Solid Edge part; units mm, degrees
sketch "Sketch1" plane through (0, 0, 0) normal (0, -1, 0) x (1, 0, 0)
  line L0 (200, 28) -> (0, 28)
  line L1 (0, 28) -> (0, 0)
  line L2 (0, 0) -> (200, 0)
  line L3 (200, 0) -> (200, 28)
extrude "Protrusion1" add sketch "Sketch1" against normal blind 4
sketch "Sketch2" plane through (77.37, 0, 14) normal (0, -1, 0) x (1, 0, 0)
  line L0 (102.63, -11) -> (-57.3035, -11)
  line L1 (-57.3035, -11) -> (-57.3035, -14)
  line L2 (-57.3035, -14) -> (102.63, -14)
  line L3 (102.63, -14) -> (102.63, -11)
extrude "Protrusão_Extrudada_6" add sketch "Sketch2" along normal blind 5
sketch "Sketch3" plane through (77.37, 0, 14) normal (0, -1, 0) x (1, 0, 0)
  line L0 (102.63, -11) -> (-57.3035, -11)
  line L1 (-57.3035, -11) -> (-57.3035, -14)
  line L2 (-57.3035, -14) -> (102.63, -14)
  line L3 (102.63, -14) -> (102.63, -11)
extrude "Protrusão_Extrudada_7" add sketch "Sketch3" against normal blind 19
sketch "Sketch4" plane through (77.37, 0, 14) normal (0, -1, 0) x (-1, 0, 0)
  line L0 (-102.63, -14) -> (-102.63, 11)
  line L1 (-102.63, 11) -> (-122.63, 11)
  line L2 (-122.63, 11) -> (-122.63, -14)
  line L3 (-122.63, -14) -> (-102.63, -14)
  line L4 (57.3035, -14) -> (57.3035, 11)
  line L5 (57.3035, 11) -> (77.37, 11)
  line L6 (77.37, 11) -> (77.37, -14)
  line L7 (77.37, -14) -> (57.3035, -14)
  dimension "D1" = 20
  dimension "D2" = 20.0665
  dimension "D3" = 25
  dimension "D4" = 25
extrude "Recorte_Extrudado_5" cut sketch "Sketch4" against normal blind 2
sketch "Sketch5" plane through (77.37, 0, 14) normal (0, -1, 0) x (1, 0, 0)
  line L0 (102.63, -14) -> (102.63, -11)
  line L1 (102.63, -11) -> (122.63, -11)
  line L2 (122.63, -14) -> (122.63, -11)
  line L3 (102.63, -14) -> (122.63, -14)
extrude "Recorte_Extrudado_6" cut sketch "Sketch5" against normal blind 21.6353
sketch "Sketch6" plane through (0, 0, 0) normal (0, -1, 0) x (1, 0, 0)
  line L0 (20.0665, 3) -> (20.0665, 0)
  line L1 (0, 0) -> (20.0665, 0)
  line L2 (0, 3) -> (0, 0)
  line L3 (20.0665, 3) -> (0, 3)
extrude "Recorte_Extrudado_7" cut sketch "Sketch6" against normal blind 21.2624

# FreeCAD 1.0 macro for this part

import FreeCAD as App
import Part
import Sketcher
from FreeCAD import Vector

doc = App.newDocument("Part")
params = doc.addObject("Spreadsheet::Sheet", "Params")
for row, (alias, value) in enumerate([
    ("sketch1_width", "200 mm"),
    ("sketch1_height", "28 mm"),
    ("pad1_length", "4 mm"),
    ("sketch2_height", "3 mm"),
    ("pad2_length", "5 mm"),
    ("sketch3_height", "3 mm"),
    ("pad3_length", "19 mm"),
    ("sketch4_width", "20 mm"),
    ("sketch4_height", "25 mm"),
    ("pocket1_length", "2 mm"),
    ("sketch5_width", "20 mm"),
    ("sketch5_height", "3 mm"),
    ("pocket2_length", "21.6353 mm"),
    ("sketch6_height", "3 mm"),
    ("pocket3_length", "21.2624 mm"),
], start=1):
    params.set(f"A{row}", alias)
    params.set(f"B{row}", "=" + value)
    params.setAlias(f"B{row}", alias)

body = doc.addObject("PartDesign::Body", "Body")

# Sketch on XZ plane
sketch1 = body.newObject("Sketcher::SketchObject", "Sketch")
sketch1.AttachmentSupport = (doc.getObject("XZ_Plane"), [""])
sketch1.MapMode = "FlatFace"
sketch1.addGeometry([
    Part.LineSegment(Vector(200, 0, 0), Vector(200, 28, 0)),
    Part.LineSegment(Vector(200, 28, 0), Vector(0, 28, 0)),
    Part.LineSegment(Vector(0, 28, 0), Vector(0, 0, 0)),
    Part.LineSegment(Vector(0, 0, 0), Vector(200, 0, 0)),
], False)
sketch1.addConstraint([
    Sketcher.Constraint("Coincident", 0, 2, 1, 1),
    Sketcher.Constraint("Coincident", 1, 2, 2, 1),
    Sketcher.Constraint("Coincident", 2, 2, 3, 1),
    Sketcher.Constraint("Coincident", 3, 2, 0, 1),
    Sketcher.Constraint("Vertical", 0),
    Sketcher.Constraint("Horizontal", 1),
    Sketcher.Constraint("Vertical", 2),
    Sketcher.Constraint("Horizontal", 3),
    Sketcher.Constraint("Coincident", 2, 2, -1, 1),
    Sketcher.Constraint("DistanceX", 1, 2, 1, 1, 200.0),
    Sketcher.Constraint("DistanceY", 0, 1, 0, 2, 28.0),
])
sketch1.setExpression("Constraints[9]", "Params.sketch1_width")
sketch1.setExpression("Constraints[10]", "Params.sketch1_height")
pad1 = body.newObject("PartDesign::Pad", "Pad")
pad1.Profile = sketch1
pad1.setExpression("Length", "Params.pad1_length")
pad1.Reversed = True

# Sketch on XZ plane
sketch2 = body.newObject("Sketcher::SketchObject", "Sketch001")
sketch2.AttachmentSupport = (doc.getObject("XZ_Plane"), [""])
sketch2.MapMode = "FlatFace"
sketch2.addGeometry([
    Part.LineSegment(Vector(180, 0, 0), Vector(180, 3, 0)),
    Part.LineSegment(Vector(180, 3, 0), Vector(20.1, 3, 0)),
    Part.LineSegment(Vector(20.1, 3, 0), Vector(20.1, 0, 0)),
    Part.LineSegment(Vector(20.1, 0, 0), Vector(180, 0, 0)),
], False)
sketch2.addConstraint([
    Sketcher.Constraint("Coincident", 0, 2, 1, 1),
    Sketcher.Constraint("Coincident", 1, 2, 2, 1),
    Sketcher.Constraint("Coincident", 2, 2, 3, 1),
    Sketcher.Constraint("Coincident", 3, 2, 0, 1),
    Sketcher.Constraint("Vertical", 0),
    Sketcher.Constraint("Horizontal", 1),
    Sketcher.Constraint("Vertical", 2),
    Sketcher.Constraint("Horizontal", 3),
    Sketcher.Constraint("PointOnObject", 2, 2, -1),
    Sketcher.Constraint("DistanceY", 0, 1, 0, 2, 3.0),
    Sketcher.Constraint("DistanceX", -1, 1, 0, 2, 180.0),
    Sketcher.Constraint("DistanceX", 1, 2, 1, 1, 159.9335),
])
sketch2.setExpression("Constraints[9]", "Params.sketch2_height")
pad2 = body.newObject("PartDesign::Pad", "Pad001")
pad2.Profile = sketch2
pad2.setExpression("Length", "Params.pad2_length")

# Sketch on XZ plane
sketch3 = body.newObject("Sketcher::SketchObject", "Sketch002")
sketch3.AttachmentSupport = (doc.getObject("XZ_Plane"), [""])
sketch3.MapMode = "FlatFace"
sketch3.addGeometry([
    Part.LineSegment(Vector(180, 0, 0), Vector(180, 3, 0)),
    Part.LineSegment(Vector(180, 3, 0), Vector(20.1, 3, 0)),
    Part.LineSegment(Vector(20.1, 3, 0), Vector(20.1, 0, 0)),
    Part.LineSegment(Vector(20.1, 0, 0), Vector(180, 0, 0)),
], False)
sketch3.addConstraint([
    Sketcher.Constraint("Coincident", 0, 2, 1, 1),
    Sketcher.Constraint("Coincident", 1, 2, 2, 1),
    Sketcher.Constraint("Coincident", 2, 2, 3, 1),
    Sketcher.Constraint("Coincident", 3, 2, 0, 1),
    Sketcher.Constraint("Vertical", 0),
    Sketcher.Constraint("Horizontal", 1),
    Sketcher.Constraint("Vertical", 2),
    Sketcher.Constraint("Horizontal", 3),
    Sketcher.Constraint("PointOnObject", 2, 2, -1),
    Sketcher.Constraint("DistanceY", 0, 1, 0, 2, 3.0),
    Sketcher.Constraint("DistanceX", -1, 1, 0, 2, 180.0),
    Sketcher.Constraint("DistanceX", 1, 2, 1, 1, 159.9335),
])
sketch3.setExpression("Constraints[9]", "Params.sketch3_height")
pad3 = body.newObject("PartDesign::Pad", "Pad002")
pad3.Profile = sketch3
pad3.setExpression("Length", "Params.pad3_length")
pad3.Reversed = True

# Sketch on XZ plane
sketch4 = body.newObject("Sketcher::SketchObject", "Sketch003")
sketch4.AttachmentSupport = (doc.getObject("XZ_Plane"), [""])
sketch4.MapMode = "FlatFace"
sketch4.addGeometry([
    Part.LineSegment(Vector(200, 28, 0), Vector(180, 28, 0)),  # 0
    Part.LineSegment(Vector(180, 28, 0), Vector(180, 3, 0)),  # 1
    Part.LineSegment(Vector(180, 3, 0), Vector(200, 3, 0)),  # 2
    Part.LineSegment(Vector(200, 3, 0), Vector(200, 28, 0)),  # 3
    Part.LineSegment(Vector(20, 3, 0), Vector(20, 28, 0)),  # 4
    Part.LineSegment(Vector(20, 28, 0), Vector(0, 28, 0)),  # 5
    Part.LineSegment(Vector(0, 28, 0), Vector(0, 3, 0)),  # 6
    Part.LineSegment(Vector(0, 3, 0), Vector(20, 3, 0)),  # 7
], False)
sketch4.addConstraint([
    Sketcher.Constraint("Coincident", 0, 2, 1, 1),
    Sketcher.Constraint("Coincident", 1, 2, 2, 1),
    Sketcher.Constraint("Coincident", 2, 2, 3, 1),
    Sketcher.Constraint("Coincident", 3, 2, 0, 1),
    Sketcher.Constraint("Coincident", 4, 2, 5, 1),
    Sketcher.Constraint("Coincident", 5, 2, 6, 1),
    Sketcher.Constraint("Coincident", 6, 2, 7, 1),
    Sketcher.Constraint("Coincident", 7, 2, 4, 1),
    Sketcher.Constraint("Horizontal", 0),
    Sketcher.Constraint("Vertical", 1),
    Sketcher.Constraint("Horizontal", 2),
    Sketcher.Constraint("Vertical", 3),
    Sketcher.Constraint("Vertical", 4),
    Sketcher.Constraint("Horizontal", 5),
    Sketcher.Constraint("Vertical", 6),
    Sketcher.Constraint("Horizontal", 7),
    Sketcher.Constraint("PointOnObject", 5, 2, -2),
    Sketcher.Constraint("Horizontal", 3, 2, 4, 2),
    Sketcher.Constraint("Horizontal", 2, 2, 6, 2),
    Sketcher.Constraint("DistanceX", 0, 2, 0, 1, 20.0),
    Sketcher.Constraint("DistanceY", 1, 2, 1, 1, 25.0),
    Sketcher.Constraint("DistanceX", -1, 1, 0, 2, 180.0),
    Sketcher.Constraint("DistanceY", -1, 1, 0, 2, 28.0),
    Sketcher.Constraint("DistanceX", 5, 2, 5, 1, 20.0665),
])
sketch4.setExpression("Constraints[19]", "Params.sketch4_width")
sketch4.setExpression("Constraints[20]", "Params.sketch4_height")
pocket1 = body.newObject("PartDesign::Pocket", "Pocket")
pocket1.Profile = sketch4
pocket1.setExpression("Length", "Params.pocket1_length")

# Sketch on XZ plane
sketch5 = body.newObject("Sketcher::SketchObject", "Sketch004")
sketch5.AttachmentSupport = (doc.getObject("XZ_Plane"), [""])
sketch5.MapMode = "FlatFace"
sketch5.addGeometry([
    Part.LineSegment(Vector(180, 3, 0), Vector(180, 0, 0)),
    Part.LineSegment(Vector(180, 0, 0), Vector(200, 0, 0)),
    Part.LineSegment(Vector(200, 0, 0), Vector(200, 3, 0)),
    Part.LineSegment(Vector(200, 3, 0), Vector(180, 3, 0)),
], False)
sketch5.addConstraint([
    Sketcher.Constraint("Coincident", 0, 2, 1, 1),
    Sketcher.Constraint("Coincident", 1, 2, 2, 1),
    Sketcher.Constraint("Coincident", 2, 2, 3, 1),
    Sketcher.Constraint("Coincident", 3, 2, 0, 1),
    Sketcher.Constraint("Vertical", 0),
    Sketcher.Constraint("Horizontal", 1),
    Sketcher.Constraint("Vertical", 2),
    Sketcher.Constraint("Horizontal", 3),
    Sketcher.Constraint("PointOnObject", 0, 2, -1),
    Sketcher.Constraint("DistanceX", 1, 1, 1, 2, 20.0),
    Sketcher.Constraint("DistanceY", 0, 2, 0, 1, 3.0),
    Sketcher.Constraint("DistanceX", -1, 1, 0, 2, 180.0),
])
sketch5.setExpression("Constraints[9]", "Params.sketch5_width")
sketch5.setExpression("Constraints[10]", "Params.sketch5_height")
pocket2 = body.newObject("PartDesign::Pocket", "Pocket001")
pocket2.Profile = sketch5
pocket2.setExpression("Length", "Params.pocket2_length")

# Sketch on XZ plane
sketch6 = body.newObject("Sketcher::SketchObject", "Sketch005")
sketch6.AttachmentSupport = (doc.getObject("XZ_Plane"), [""])
sketch6.MapMode = "FlatFace"
sketch6.addGeometry([
    Part.LineSegment(Vector(20.1, 0, 0), Vector(20.1, 3, 0)),
    Part.LineSegment(Vector(20.1, 3, 0), Vector(0, 3, 0)),
    Part.LineSegment(Vector(0, 3, 0), Vector(0, 0, 0)),
    Part.LineSegment(Vector(0, 0, 0), Vector(20.1, 0, 0)),
], False)
sketch6.addConstraint([
    Sketcher.Constraint("Coincident", 0, 2, 1, 1),
    Sketcher.Constraint("Coincident", 1, 2, 2, 1),
    Sketcher.Constraint("Coincident", 2, 2, 3, 1),
    Sketcher.Constraint("Coincident", 3, 2, 0, 1),
    Sketcher.Constraint("Vertical", 0),
    Sketcher.Constraint("Horizontal", 1),
    Sketcher.Constraint("Vertical", 2),
    Sketcher.Constraint("Horizontal", 3),
    Sketcher.Constraint("Coincident", 2, 2, -1, 1),
    Sketcher.Constraint("DistanceY", 0, 1, 0, 2, 3.0),
    Sketcher.Constraint("DistanceX", 1, 2, 1, 1, 20.0665),
])
sketch6.setExpression("Constraints[9]", "Params.sketch6_height")
pocket3 = body.newObject("PartDesign::Pocket", "Pocket002")
pocket3.Profile = sketch6
pocket3.setExpression("Length", "Params.pocket3_length")

doc.recompute()
